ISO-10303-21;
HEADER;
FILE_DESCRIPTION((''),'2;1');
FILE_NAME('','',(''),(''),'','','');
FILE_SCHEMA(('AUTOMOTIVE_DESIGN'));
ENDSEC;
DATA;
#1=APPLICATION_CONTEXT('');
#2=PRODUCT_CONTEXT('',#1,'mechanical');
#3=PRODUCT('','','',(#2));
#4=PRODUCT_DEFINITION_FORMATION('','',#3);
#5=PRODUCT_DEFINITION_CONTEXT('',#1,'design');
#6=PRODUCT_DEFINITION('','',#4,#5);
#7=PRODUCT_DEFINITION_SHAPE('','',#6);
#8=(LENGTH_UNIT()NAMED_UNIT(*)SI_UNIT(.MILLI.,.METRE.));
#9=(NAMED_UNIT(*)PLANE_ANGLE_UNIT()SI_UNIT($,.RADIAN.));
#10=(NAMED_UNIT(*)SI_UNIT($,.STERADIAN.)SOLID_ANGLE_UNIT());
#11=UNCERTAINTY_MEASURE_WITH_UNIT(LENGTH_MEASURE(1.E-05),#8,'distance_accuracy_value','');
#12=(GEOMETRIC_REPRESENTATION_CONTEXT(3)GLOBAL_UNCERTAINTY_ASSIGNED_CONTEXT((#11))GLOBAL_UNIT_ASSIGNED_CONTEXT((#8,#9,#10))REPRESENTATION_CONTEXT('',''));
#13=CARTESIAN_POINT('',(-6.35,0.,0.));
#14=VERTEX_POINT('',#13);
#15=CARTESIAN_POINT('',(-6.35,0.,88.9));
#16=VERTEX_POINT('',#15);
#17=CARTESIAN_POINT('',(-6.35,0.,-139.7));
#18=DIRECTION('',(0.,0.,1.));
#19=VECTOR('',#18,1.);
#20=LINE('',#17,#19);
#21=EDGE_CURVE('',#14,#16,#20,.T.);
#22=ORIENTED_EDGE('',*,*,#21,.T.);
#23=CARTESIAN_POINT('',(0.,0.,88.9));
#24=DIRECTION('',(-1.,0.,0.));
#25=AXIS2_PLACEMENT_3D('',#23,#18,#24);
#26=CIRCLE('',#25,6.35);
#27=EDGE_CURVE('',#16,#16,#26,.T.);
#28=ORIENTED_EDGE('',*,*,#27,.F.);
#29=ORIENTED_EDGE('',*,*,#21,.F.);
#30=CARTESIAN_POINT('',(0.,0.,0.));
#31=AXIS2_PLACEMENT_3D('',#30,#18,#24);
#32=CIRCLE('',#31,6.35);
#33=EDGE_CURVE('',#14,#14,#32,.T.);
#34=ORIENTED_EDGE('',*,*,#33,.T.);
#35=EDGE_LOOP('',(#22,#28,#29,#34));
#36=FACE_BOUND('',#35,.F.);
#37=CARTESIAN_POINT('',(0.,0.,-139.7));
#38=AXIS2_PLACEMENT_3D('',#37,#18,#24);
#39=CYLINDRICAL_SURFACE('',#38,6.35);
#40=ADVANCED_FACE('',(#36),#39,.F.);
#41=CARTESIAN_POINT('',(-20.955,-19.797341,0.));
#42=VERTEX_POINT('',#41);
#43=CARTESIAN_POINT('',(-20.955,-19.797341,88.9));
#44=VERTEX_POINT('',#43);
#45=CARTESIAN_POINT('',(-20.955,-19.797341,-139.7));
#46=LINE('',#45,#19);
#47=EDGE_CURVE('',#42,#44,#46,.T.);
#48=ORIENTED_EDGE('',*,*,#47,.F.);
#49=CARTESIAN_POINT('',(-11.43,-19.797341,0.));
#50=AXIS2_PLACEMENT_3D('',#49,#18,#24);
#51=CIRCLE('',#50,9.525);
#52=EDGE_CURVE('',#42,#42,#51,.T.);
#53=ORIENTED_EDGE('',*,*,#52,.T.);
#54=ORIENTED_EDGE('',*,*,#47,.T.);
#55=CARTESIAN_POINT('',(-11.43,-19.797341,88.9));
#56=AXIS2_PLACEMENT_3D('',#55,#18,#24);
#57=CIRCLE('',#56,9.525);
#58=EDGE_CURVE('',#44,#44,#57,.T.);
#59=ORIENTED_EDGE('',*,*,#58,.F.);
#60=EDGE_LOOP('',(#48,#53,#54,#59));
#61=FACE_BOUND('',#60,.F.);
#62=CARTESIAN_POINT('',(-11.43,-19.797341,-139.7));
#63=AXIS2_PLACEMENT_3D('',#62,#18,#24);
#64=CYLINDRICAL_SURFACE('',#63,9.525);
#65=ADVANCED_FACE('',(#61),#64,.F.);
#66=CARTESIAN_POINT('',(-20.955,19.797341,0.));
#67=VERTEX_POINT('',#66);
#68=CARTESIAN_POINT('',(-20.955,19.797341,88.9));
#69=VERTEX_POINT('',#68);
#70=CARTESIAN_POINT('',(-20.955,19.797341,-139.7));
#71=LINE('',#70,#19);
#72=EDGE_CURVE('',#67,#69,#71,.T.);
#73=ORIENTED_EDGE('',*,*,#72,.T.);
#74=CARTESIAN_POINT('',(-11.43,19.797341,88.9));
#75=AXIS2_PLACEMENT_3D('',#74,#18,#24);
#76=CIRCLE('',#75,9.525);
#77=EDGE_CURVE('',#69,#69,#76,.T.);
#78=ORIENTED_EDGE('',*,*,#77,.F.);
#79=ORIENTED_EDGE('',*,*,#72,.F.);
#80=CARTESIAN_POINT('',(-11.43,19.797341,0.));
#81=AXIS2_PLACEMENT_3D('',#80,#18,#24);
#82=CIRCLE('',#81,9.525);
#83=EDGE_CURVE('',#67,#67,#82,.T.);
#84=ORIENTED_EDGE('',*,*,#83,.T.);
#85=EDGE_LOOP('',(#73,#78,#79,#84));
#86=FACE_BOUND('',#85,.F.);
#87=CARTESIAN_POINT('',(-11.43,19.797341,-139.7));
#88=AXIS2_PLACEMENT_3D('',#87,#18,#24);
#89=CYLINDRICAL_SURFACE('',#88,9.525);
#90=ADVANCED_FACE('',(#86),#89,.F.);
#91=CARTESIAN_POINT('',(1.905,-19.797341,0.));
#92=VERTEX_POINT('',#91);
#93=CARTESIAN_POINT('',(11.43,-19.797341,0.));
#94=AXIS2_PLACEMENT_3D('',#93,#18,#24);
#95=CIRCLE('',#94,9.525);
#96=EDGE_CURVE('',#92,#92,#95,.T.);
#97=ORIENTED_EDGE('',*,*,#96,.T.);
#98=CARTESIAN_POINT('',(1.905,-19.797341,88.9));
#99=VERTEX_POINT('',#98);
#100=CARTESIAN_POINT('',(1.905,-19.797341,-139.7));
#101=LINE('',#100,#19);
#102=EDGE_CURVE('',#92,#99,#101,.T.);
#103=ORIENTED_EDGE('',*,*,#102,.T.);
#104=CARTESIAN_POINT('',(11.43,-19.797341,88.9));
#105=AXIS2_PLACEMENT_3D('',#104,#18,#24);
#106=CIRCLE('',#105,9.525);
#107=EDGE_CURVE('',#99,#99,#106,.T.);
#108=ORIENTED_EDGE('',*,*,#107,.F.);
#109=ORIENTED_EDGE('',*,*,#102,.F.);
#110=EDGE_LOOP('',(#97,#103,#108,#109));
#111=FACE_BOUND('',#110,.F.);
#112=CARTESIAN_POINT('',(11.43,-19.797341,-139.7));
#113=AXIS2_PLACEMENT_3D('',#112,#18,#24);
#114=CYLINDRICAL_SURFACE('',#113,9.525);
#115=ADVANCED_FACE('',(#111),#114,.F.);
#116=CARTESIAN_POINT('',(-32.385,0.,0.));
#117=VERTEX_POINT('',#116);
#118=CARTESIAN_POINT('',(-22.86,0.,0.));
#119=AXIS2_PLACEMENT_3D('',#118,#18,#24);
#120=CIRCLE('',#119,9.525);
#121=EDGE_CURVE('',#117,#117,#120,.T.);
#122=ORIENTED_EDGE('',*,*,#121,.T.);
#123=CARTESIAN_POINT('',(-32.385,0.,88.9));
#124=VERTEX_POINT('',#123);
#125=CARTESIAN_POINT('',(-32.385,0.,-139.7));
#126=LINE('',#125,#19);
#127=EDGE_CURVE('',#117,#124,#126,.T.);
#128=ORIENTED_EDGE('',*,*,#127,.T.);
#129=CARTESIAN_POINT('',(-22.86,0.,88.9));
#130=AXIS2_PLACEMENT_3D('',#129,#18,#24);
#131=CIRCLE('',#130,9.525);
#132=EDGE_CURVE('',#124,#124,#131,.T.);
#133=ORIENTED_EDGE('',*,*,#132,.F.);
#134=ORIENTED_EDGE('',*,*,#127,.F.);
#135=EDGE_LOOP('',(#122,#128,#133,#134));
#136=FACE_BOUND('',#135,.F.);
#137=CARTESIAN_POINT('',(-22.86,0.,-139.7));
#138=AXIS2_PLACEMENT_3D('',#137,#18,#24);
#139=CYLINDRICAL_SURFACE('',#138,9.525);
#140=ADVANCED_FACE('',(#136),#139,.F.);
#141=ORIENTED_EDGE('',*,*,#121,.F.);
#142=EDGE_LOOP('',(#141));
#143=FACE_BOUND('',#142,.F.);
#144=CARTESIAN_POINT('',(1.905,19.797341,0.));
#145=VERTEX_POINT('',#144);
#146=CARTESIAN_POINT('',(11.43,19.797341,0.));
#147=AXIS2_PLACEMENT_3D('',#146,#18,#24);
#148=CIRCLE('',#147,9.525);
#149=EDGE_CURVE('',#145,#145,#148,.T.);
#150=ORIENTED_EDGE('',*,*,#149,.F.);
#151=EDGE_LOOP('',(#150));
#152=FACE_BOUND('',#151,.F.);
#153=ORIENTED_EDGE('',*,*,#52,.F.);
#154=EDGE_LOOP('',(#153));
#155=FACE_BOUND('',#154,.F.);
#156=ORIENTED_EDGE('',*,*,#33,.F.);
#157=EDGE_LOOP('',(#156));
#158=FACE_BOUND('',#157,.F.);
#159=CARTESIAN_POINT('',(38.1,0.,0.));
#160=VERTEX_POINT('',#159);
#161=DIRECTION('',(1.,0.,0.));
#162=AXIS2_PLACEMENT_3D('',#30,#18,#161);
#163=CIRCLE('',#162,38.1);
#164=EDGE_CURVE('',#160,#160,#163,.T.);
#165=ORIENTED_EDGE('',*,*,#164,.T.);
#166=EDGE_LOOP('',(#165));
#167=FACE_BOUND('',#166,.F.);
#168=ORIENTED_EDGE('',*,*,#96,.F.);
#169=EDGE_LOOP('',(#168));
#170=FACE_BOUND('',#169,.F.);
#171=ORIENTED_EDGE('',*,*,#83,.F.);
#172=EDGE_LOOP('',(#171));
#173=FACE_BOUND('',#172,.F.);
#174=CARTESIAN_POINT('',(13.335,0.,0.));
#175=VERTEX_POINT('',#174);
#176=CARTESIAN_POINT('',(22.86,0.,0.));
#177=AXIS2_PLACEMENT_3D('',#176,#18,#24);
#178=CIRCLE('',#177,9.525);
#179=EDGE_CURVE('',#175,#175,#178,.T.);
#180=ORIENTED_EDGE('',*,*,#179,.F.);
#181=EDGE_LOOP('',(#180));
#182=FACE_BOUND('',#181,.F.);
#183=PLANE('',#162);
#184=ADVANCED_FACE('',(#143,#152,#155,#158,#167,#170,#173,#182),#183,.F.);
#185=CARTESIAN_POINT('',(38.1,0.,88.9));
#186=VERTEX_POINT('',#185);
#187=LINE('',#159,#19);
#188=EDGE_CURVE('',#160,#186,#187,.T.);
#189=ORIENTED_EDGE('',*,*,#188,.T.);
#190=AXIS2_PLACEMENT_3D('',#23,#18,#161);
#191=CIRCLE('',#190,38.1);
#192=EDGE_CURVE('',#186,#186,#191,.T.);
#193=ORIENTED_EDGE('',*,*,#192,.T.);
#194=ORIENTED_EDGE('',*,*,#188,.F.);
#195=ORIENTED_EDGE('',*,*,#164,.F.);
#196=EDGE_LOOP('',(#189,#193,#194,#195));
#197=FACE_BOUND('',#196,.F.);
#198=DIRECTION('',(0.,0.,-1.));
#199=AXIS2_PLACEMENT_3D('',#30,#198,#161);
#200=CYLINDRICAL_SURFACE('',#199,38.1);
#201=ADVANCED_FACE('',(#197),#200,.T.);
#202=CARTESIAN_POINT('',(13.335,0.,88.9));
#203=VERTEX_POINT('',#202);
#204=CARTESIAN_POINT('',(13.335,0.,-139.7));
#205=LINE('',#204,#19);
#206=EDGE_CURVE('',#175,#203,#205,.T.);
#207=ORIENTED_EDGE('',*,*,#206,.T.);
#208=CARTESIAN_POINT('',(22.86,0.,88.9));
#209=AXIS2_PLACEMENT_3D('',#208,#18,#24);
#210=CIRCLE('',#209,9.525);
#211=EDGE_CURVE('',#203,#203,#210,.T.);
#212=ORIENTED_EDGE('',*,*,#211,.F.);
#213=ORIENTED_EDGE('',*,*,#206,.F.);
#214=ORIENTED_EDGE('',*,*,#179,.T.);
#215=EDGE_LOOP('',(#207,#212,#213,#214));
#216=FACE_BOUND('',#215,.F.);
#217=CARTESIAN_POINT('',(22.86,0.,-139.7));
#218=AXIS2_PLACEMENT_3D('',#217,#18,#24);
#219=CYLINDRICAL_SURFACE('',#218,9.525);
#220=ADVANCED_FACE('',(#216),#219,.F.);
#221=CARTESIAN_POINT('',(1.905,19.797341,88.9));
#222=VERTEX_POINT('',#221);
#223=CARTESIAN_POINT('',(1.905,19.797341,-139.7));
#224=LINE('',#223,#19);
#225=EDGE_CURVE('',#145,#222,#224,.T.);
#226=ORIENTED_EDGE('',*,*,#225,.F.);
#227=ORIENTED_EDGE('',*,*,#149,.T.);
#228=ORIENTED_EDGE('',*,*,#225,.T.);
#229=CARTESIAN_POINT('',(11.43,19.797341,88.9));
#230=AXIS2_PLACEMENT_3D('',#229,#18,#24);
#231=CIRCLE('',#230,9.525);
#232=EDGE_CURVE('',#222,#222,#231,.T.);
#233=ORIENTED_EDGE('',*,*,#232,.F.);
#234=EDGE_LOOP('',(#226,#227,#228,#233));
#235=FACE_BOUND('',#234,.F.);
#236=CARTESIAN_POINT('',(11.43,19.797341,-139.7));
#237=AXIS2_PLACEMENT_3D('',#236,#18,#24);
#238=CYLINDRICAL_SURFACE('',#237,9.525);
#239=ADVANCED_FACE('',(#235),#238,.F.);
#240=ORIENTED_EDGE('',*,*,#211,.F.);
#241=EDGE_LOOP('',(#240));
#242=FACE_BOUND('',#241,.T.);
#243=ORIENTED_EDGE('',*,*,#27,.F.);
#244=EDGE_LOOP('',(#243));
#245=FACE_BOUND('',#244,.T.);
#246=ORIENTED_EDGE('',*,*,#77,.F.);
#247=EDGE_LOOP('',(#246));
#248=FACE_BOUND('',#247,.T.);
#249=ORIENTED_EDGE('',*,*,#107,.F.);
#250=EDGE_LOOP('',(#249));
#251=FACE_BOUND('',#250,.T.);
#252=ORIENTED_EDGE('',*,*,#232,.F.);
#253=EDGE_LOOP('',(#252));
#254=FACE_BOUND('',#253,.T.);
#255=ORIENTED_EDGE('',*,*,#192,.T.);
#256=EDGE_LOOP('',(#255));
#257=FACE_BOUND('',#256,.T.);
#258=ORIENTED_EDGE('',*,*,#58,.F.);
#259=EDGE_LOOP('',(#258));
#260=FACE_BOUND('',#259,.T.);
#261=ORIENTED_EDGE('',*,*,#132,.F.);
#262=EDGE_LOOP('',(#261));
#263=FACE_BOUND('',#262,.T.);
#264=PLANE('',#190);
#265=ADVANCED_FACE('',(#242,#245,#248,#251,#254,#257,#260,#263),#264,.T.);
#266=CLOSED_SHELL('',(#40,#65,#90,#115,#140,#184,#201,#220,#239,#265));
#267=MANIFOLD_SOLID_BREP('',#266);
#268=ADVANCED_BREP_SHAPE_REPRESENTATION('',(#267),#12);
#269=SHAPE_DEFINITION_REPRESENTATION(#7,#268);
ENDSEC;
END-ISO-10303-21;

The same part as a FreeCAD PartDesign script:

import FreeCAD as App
import Part
import Sketcher
Q = App.Units.Quantity

doc = App.newDocument("Part")
body = doc.addObject("PartDesign::Body", "Body")

# Sketch on XY plane
sketch1 = body.newObject("Sketcher::SketchObject", "Sketch")
sketch1.AttachmentSupport = (doc.getObject("XY_Plane"), [""])
sketch1.MapMode = "FlatFace"
sketch1.addGeometry(Part.Circle(App.Vector(0, 0, 0), App.Vector(0, 0, 1), 38.1), False)
sketch1.addConstraint([
    Sketcher.Constraint("Coincident", 0, 3, -1, 1),
    Sketcher.Constraint("Diameter", 0, Q("3 in")),
])
pad1 = body.newObject("PartDesign::Pad", "Pad")
pad1.Profile = sketch1
pad1.Length = Q("3.5 in")

# Sketch on XY plane
sketch2 = body.newObject("Sketcher::SketchObject", "Sketch001")
sketch2.AttachmentSupport = (doc.getObject("XY_Plane"), [""])
sketch2.MapMode = "FlatFace"
sketch2.addGeometry(Part.Circle(App.Vector(0, 0, 0), App.Vector(0, 0, 1), 6.35), False)
sketch2.addConstraint([
    Sketcher.Constraint("Coincident", 0, 3, -1, 1),
    Sketcher.Constraint("Diameter", 0, Q("0.5 in")),
])
doc.recompute()
hole = body.newObject("PartDesign::Hole", "Hole")
hole.Profile = sketch2
hole.ThreadType = "None"
hole.Diameter = Q("0.5 in")
hole.DepthType = "ThroughAll"
hole.Reversed = True

# Sketch on XY plane
sketch3 = body.newObject("Sketcher::SketchObject", "Sketch002")
sketch3.AttachmentSupport = (doc.getObject("XY_Plane"), [""])
sketch3.MapMode = "FlatFace"
sketch3.addGeometry([
    Part.Circle(App.Vector(-22.86, 0, 0), App.Vector(0, 0, 1), 9.525),  # 0
    Part.Circle(App.Vector(-11.43, 19.797341, 0), App.Vector(0, 0, 1), 9.525),  # 1
    Part.Circle(App.Vector(11.43, 19.797341, 0), App.Vector(0, 0, 1), 9.525),  # 2
    Part.Circle(App.Vector(22.86, 0, 0), App.Vector(0, 0, 1), 9.525),  # 3
    Part.Circle(App.Vector(11.43, -19.797341, 0), App.Vector(0, 0, 1), 9.525),  # 4
    Part.Circle(App.Vector(-11.43, -19.797341, 0), App.Vector(0, 0, 1), 9.525),  # 5
], False)
sketch3.addConstraint([
    Sketcher.Constraint("Equal", 0, 1),
    Sketcher.Constraint("Equal", 1, 2),
    Sketcher.Constraint("Equal", 2, 3),
    Sketcher.Constraint("Equal", 3, 4),
    Sketcher.Constraint("Equal", 4, 5),
    Sketcher.Constraint("Symmetric", 0, 3, 3, 3, -1, 1),
    Sketcher.Constraint("Symmetric", 1, 3, 4, 3, -1, 1),
    Sketcher.Constraint("Symmetric", 2, 3, 5, 3, -1, 1),
    Sketcher.Constraint("Symmetric", 1, 3, 2, 3, -2),
    Sketcher.Constraint("PointOnObject", 0, 3, -1),
    Sketcher.Constraint("Diameter", 0, Q("0.75 in")),
    Sketcher.Constraint("DistanceX", 0, 3, -1, 1, Q("0.9 in")),
    Sketcher.Constraint("DistanceX", 1, 3, 2, 3, Q("0.9 in")),
    Sketcher.Constraint("DistanceY", -1, 1, 1, 3, 19.797341),
])
doc.recompute()
hole2 = body.newObject("PartDesign::Hole", "Hole001")
hole2.Profile = sketch3
hole2.ThreadType = "None"
hole2.Diameter = Q("0.75 in")
hole2.DepthType = "ThroughAll"
hole2.Reversed = True

doc.recompute()
